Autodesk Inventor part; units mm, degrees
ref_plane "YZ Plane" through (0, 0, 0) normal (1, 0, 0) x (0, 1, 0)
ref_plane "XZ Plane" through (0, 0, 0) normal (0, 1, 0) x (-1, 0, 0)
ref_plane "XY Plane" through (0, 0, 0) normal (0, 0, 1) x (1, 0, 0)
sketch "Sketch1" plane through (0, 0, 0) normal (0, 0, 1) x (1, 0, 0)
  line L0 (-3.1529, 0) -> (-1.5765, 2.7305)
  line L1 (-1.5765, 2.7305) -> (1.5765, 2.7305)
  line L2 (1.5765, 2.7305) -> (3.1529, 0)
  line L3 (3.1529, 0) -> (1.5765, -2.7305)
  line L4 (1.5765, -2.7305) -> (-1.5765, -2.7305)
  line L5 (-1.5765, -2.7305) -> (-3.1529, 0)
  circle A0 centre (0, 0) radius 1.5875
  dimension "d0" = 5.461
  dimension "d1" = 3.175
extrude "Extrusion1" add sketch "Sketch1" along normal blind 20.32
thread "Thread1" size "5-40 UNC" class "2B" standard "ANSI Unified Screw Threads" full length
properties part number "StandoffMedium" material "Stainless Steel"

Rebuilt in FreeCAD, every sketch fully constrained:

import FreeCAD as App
import Part
import Sketcher
Q = App.Units.Quantity


def add_polygon(sketch, points):
    """Adds a closed chain of lines whose ends are joined by coincident constraints."""
    first, n = sketch.GeometryCount, len(points)
    for a, b in zip(points, points[1:] + points[:1]):
        sketch.addGeometry(Part.LineSegment(App.Vector(*a, 0), App.Vector(*b, 0)), False)
    for i in range(n):
        sketch.addConstraint(Sketcher.Constraint("Coincident", first + i, 2, first + (i + 1) % n, 1))

doc = App.newDocument("Part")
body = doc.addObject("PartDesign::Body", "Body")

sketch1 = body.newObject("Sketcher::SketchObject", "Sketch")
sketch1.AttachmentSupport = (doc.getObject("XY_Plane"), [""])
sketch1.MapMode = "FlatFace"
add_polygon(sketch1, [(-1.6, 2.7), (-3.2, 0), (-1.6, -2.7), (1.6, -2.7), (3.2, 0), (1.6, 2.7)])
sketch1.addGeometry(Part.Circle(App.Vector(0, 0, 0), App.Vector(0, 0, 1), 1.6), False)
sketch1.addConstraint([
    Sketcher.Constraint("Horizontal", 2),
    Sketcher.Constraint("Horizontal", 5),
    Sketcher.Constraint("Coincident", 6, 3, -1, 1),
    Sketcher.Constraint("Symmetric", 0, 2, 3, 2, -1, 1),
    Sketcher.Constraint("Symmetric", 1, 2, 4, 2, -1, 1),
    Sketcher.Constraint("PointOnObject", 0, 2, -1),
    Sketcher.Constraint("Parallel", 0, 3),
    Sketcher.Constraint("Vertical", 2, 2, 4, 2),
    Sketcher.Constraint("Diameter", 6, Q("0.125 in")),
    Sketcher.Constraint("Angle", 0, Q("-119.9991 deg")),
    Sketcher.Constraint("DistanceY", 2, 2, 4, 2, Q("0.215 in")),
    Sketcher.Constraint("DistanceX", 2, 1, 2, 2, 3.153),
])
pad1 = body.newObject("PartDesign::Pad", "Pad")
pad1.Profile = sketch1
pad1.Length = Q("0.8 in")

doc.recompute()
